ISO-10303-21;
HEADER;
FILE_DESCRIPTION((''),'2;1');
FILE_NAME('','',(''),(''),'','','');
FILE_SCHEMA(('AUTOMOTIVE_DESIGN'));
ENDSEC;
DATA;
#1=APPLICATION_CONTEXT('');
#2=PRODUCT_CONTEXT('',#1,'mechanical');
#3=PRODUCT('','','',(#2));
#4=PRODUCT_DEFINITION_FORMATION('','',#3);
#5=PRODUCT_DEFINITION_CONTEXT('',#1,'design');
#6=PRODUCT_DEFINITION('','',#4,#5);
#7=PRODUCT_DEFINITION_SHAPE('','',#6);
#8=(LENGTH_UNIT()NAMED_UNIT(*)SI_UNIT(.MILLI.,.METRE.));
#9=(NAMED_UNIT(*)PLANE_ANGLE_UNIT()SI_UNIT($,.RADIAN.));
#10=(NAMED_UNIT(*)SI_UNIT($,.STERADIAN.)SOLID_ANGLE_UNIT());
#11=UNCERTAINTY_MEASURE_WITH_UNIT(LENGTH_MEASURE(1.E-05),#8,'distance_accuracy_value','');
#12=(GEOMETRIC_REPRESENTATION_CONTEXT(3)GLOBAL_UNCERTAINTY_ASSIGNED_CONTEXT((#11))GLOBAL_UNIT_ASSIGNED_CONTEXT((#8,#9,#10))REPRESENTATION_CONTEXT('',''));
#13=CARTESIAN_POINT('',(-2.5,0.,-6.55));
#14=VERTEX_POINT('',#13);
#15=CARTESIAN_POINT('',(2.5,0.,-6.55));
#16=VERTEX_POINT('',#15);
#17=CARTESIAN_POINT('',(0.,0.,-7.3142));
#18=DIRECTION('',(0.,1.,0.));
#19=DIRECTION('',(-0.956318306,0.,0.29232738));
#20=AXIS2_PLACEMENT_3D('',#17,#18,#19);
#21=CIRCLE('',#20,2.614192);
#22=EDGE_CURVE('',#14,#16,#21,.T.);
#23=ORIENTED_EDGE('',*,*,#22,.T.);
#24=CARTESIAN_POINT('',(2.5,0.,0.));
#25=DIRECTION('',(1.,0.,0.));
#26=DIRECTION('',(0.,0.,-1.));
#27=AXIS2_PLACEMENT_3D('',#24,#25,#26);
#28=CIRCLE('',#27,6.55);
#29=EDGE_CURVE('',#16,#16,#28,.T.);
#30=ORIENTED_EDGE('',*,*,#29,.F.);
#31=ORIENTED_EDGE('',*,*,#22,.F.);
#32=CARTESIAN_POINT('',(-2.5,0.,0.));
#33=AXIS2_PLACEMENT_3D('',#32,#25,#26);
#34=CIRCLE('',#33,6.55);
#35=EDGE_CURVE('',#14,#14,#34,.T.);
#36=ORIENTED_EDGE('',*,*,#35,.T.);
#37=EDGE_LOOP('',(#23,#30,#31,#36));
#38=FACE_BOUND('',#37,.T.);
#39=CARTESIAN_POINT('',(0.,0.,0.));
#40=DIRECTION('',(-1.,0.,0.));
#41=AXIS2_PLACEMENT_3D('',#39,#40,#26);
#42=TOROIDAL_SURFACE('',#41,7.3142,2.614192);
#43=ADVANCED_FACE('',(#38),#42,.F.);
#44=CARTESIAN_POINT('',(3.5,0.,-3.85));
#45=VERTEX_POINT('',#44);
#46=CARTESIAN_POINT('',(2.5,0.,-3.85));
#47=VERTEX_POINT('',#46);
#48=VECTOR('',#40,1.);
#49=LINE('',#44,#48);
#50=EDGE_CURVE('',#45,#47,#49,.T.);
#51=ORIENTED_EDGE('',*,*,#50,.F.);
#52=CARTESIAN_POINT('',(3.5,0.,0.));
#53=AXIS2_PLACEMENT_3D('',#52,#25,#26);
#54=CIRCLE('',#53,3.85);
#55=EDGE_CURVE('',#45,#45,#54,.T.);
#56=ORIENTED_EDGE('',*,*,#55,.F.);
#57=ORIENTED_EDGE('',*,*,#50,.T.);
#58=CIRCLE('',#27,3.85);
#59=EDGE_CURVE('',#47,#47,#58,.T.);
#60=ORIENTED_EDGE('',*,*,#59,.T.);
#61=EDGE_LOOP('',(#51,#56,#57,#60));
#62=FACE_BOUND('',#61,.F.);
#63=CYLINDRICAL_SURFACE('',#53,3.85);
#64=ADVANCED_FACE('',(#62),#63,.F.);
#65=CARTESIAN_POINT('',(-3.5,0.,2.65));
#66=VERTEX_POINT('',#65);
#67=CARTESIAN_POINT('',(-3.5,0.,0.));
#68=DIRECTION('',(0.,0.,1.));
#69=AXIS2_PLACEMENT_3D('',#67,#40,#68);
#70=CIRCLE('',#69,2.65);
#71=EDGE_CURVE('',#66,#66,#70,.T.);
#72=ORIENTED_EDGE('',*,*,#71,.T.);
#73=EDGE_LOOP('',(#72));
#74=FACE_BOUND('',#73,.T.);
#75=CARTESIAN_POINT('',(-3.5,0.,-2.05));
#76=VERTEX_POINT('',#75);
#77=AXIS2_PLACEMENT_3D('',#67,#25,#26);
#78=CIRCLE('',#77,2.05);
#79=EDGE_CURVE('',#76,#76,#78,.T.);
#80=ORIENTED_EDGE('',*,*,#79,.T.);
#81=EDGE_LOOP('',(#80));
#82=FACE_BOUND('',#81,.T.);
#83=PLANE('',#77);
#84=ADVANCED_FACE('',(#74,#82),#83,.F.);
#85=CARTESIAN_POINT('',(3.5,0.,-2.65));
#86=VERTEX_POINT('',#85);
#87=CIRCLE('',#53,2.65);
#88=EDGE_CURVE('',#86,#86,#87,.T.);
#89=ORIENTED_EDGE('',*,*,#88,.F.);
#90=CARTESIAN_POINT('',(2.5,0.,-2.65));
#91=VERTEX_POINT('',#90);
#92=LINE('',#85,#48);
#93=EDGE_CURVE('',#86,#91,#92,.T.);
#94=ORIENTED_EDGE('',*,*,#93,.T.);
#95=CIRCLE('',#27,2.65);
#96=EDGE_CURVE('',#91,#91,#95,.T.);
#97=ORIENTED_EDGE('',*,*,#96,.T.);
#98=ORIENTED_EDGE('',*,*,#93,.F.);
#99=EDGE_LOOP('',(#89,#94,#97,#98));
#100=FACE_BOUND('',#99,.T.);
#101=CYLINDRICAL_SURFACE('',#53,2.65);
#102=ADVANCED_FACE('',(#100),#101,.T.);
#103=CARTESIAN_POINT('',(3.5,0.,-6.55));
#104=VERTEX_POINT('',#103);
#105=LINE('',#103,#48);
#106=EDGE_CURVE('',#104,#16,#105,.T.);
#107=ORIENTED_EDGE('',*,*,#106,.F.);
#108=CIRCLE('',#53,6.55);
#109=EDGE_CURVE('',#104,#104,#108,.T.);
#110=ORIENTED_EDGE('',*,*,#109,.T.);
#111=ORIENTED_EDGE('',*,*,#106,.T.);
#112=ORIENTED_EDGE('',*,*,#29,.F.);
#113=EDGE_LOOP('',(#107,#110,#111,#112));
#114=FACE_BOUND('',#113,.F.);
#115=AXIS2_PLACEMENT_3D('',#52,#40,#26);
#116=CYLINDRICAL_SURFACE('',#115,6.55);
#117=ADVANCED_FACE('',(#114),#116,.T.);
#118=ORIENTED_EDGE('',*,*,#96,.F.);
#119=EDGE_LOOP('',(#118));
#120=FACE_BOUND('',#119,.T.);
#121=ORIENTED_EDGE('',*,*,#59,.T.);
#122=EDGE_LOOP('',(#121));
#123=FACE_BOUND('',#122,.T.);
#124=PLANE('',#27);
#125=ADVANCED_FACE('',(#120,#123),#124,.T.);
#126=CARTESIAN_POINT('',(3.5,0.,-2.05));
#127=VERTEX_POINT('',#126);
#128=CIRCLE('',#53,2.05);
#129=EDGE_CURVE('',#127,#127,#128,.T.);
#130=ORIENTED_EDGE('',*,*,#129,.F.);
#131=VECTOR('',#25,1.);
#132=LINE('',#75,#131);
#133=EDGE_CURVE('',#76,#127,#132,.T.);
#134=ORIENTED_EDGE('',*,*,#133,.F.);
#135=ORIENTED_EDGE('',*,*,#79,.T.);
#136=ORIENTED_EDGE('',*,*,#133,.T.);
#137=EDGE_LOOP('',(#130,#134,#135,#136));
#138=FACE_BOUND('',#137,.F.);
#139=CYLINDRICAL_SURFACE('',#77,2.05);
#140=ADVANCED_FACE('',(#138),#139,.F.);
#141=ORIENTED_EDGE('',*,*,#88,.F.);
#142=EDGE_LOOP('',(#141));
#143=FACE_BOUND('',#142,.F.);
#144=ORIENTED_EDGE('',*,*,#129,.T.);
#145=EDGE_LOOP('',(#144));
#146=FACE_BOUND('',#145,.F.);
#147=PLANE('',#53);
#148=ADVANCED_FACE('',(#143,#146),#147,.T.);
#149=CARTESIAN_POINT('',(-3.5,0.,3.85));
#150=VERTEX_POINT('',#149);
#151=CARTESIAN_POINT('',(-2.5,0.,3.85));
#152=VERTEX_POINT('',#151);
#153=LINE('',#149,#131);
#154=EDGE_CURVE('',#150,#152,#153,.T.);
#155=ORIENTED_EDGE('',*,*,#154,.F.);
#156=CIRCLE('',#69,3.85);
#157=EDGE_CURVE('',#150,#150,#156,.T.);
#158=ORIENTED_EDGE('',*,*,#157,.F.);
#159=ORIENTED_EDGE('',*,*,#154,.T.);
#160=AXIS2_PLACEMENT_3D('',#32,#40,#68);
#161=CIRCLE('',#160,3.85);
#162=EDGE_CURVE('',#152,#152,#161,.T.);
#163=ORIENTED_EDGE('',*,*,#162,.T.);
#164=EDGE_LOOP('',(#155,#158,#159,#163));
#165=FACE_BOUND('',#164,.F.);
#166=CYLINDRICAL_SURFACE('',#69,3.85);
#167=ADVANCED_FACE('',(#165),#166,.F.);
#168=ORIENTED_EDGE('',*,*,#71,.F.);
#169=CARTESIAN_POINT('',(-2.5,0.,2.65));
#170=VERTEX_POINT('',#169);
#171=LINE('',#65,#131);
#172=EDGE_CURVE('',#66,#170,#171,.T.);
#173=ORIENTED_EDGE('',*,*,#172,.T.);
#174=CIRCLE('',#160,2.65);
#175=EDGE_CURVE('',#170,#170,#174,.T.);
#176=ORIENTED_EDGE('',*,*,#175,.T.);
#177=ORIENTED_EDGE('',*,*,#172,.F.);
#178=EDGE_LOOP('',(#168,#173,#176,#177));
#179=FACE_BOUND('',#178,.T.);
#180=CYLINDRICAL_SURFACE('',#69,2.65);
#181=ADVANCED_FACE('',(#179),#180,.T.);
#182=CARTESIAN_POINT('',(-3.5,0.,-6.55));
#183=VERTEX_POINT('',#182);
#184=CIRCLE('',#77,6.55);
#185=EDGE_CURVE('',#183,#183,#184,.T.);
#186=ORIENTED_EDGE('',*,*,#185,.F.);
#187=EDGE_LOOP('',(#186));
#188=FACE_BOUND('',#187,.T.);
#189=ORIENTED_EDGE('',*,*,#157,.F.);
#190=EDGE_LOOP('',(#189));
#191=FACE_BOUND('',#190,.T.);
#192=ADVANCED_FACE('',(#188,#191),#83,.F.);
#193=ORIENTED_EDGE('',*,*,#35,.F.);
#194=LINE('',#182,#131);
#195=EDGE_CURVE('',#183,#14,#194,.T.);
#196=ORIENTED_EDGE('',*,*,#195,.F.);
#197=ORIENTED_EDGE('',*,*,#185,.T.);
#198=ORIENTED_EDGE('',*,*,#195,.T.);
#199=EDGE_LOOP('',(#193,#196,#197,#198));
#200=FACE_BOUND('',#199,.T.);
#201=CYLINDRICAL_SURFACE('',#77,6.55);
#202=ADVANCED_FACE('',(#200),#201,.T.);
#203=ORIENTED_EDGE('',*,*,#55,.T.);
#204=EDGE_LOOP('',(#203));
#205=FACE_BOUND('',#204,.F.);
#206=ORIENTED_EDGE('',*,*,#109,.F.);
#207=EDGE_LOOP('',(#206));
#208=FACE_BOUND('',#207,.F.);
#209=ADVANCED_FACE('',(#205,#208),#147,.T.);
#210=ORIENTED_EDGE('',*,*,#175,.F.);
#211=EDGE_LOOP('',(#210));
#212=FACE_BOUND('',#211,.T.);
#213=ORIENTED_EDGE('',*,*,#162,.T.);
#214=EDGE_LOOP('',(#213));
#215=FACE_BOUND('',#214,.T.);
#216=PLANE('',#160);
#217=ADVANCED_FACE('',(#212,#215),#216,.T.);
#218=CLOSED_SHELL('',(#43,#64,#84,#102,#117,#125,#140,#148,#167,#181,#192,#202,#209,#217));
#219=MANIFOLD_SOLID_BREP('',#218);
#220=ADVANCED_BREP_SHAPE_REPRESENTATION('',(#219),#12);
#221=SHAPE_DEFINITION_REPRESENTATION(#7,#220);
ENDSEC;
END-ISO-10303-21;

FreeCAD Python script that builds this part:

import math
import FreeCAD as App
import Part
import Sketcher
from FreeCAD import Vector
Q = App.Units.Quantity

doc = App.newDocument("Part")
body = doc.addObject("PartDesign::Body", "Body")

# Sketch on XZ plane
sketch1 = body.newObject("Sketcher::SketchObject", "Sketch")
sketch1.AttachmentSupport = (doc.getObject("XZ_Plane"), [""])
sketch1.MapMode = "FlatFace"
sketch1.addGeometry(Part.LineSegment(Vector(-2.5, -6.5, 0), Vector(-3.5, -6.5, 0)), False)
sketch1.addGeometry(Part.LineSegment(Vector(-3.5, -6.5, 0), Vector(-3.5, -2, 0)), False)
sketch1.addGeometry(Part.LineSegment(Vector(-3.5, -2, 0), Vector(3.5, -2, 0)), False)
sketch1.addGeometry(Part.LineSegment(Vector(3.5, -2, 0), Vector(3.5, -6.5, 0)), False)
sketch1.addGeometry(Part.LineSegment(Vector(3.5, -6.5, 0), Vector(2.5, -6.5, 0)), False)
sketch1.addGeometry(Part.ArcOfCircle(Part.Circle(Vector(0, -7.3, 0), Vector(0, 0, 1), 2.6), math.radians(17), math.radians(163)), False)
sketch1.addConstraint(Sketcher.Constraint("Coincident", 0, 2, 1, 1))
sketch1.addConstraint(Sketcher.Constraint("Coincident", 1, 2, 2, 1))
sketch1.addConstraint(Sketcher.Constraint("Coincident", 2, 2, 3, 1))
sketch1.addConstraint(Sketcher.Constraint("Coincident", 3, 2, 4, 1))
sketch1.addConstraint(Sketcher.Constraint("Coincident", 4, 2, 5, 1))
sketch1.addConstraint(Sketcher.Constraint("Coincident", 5, 2, 0, 1))
sketch1.addConstraint(Sketcher.Constraint("Horizontal", 0))
sketch1.addConstraint(Sketcher.Constraint("Vertical", 1))
sketch1.addConstraint(Sketcher.Constraint("Horizontal", 2))
sketch1.addConstraint(Sketcher.Constraint("Vertical", 3))
sketch1.addConstraint(Sketcher.Constraint("Horizontal", 4))
sketch1.addConstraint(Sketcher.Constraint("Symmetric", 0, 2, 3, 2, -2))
sketch1.addConstraint(Sketcher.Constraint("PointOnObject", 5, 3, -2))
sketch1.addConstraint(Sketcher.Constraint("DistanceX", 0, 2, 0, 1, Q("1 mm")))
sketch1.addConstraint(Sketcher.Constraint("DistanceX", 2, 1, 2, 2, Q("7 mm")))
sketch1.addConstraint(Sketcher.Constraint("DistanceY", 0, 2, -1, 1, Q("6.55 mm")))
sketch1.addConstraint(Sketcher.Constraint("DistanceY", 1, 2, -1, 1, Q("2.05 mm")))
sketch1.addConstraint(Sketcher.Constraint("Radius", 5, Q("2.6142 mm")))
revolution = body.newObject("PartDesign::Revolution", "Revolution")
revolution.Profile = sketch1
revolution.ReferenceAxis = (sketch1, ["H_Axis"])
revolution.Angle = 360

# Sketch on YZ plane
sketch2 = body.newObject("Sketcher::SketchObject", "Sketch001")
sketch2.AttachmentSupport = (doc.getObject("YZ_Plane"), [""])
sketch2.MapMode = "FlatFace"
sketch2.AttachmentOffset = App.Placement(Vector(0, 0, -3.5), App.Rotation())
sketch2.addGeometry(Part.Circle(Vector(0, 0, 0), Vector(0, 0, 1), 3.9), False)
sketch2.addGeometry(Part.Circle(Vector(0, 0, 0), Vector(0, 0, 1), 2.6), False)
sketch2.addConstraint(Sketcher.Constraint("Coincident", 0, 3, -1, 1))
sketch2.addConstraint(Sketcher.Constraint("Coincident", 1, 3, -1, 1))
sketch2.addConstraint(Sketcher.Constraint("Diameter", 0, Q("7.7 mm")))
sketch2.addConstraint(Sketcher.Constraint("Diameter", 1, Q("5.3 mm")))
pocket1 = body.newObject("PartDesign::Pocket", "Pocket")
pocket1.Profile = sketch2
pocket1.Length = 1
pocket1.Reversed = True

# Sketch on YZ plane
sketch3 = body.newObject("Sketcher::SketchObject", "Sketch002")
sketch3.AttachmentSupport = (doc.getObject("YZ_Plane"), [""])
sketch3.MapMode = "FlatFace"
sketch3.AttachmentOffset = App.Placement(Vector(0, 0, 3.5), App.Rotation())
sketch3.addGeometry(Part.Circle(Vector(0, 0, 0), Vector(0, 0, 1), 3.9), False)
sketch3.addGeometry(Part.Circle(Vector(0, 0, 0), Vector(0, 0, 1), 2.6), False)
sketch3.addConstraint(Sketcher.Constraint("Coincident", 0, 3, -1, 1))
sketch3.addConstraint(Sketcher.Constraint("Coincident", 1, 3, -1, 1))
sketch3.addConstraint(Sketcher.Constraint("Diameter", 0, Q("7.7 mm")))
sketch3.addConstraint(Sketcher.Constraint("Diameter", 1, Q("5.3 mm")))
pocket2 = body.newObject("PartDesign::Pocket", "Pocket001")
pocket2.Profile = sketch3
pocket2.Length = 1

doc.recompute()
